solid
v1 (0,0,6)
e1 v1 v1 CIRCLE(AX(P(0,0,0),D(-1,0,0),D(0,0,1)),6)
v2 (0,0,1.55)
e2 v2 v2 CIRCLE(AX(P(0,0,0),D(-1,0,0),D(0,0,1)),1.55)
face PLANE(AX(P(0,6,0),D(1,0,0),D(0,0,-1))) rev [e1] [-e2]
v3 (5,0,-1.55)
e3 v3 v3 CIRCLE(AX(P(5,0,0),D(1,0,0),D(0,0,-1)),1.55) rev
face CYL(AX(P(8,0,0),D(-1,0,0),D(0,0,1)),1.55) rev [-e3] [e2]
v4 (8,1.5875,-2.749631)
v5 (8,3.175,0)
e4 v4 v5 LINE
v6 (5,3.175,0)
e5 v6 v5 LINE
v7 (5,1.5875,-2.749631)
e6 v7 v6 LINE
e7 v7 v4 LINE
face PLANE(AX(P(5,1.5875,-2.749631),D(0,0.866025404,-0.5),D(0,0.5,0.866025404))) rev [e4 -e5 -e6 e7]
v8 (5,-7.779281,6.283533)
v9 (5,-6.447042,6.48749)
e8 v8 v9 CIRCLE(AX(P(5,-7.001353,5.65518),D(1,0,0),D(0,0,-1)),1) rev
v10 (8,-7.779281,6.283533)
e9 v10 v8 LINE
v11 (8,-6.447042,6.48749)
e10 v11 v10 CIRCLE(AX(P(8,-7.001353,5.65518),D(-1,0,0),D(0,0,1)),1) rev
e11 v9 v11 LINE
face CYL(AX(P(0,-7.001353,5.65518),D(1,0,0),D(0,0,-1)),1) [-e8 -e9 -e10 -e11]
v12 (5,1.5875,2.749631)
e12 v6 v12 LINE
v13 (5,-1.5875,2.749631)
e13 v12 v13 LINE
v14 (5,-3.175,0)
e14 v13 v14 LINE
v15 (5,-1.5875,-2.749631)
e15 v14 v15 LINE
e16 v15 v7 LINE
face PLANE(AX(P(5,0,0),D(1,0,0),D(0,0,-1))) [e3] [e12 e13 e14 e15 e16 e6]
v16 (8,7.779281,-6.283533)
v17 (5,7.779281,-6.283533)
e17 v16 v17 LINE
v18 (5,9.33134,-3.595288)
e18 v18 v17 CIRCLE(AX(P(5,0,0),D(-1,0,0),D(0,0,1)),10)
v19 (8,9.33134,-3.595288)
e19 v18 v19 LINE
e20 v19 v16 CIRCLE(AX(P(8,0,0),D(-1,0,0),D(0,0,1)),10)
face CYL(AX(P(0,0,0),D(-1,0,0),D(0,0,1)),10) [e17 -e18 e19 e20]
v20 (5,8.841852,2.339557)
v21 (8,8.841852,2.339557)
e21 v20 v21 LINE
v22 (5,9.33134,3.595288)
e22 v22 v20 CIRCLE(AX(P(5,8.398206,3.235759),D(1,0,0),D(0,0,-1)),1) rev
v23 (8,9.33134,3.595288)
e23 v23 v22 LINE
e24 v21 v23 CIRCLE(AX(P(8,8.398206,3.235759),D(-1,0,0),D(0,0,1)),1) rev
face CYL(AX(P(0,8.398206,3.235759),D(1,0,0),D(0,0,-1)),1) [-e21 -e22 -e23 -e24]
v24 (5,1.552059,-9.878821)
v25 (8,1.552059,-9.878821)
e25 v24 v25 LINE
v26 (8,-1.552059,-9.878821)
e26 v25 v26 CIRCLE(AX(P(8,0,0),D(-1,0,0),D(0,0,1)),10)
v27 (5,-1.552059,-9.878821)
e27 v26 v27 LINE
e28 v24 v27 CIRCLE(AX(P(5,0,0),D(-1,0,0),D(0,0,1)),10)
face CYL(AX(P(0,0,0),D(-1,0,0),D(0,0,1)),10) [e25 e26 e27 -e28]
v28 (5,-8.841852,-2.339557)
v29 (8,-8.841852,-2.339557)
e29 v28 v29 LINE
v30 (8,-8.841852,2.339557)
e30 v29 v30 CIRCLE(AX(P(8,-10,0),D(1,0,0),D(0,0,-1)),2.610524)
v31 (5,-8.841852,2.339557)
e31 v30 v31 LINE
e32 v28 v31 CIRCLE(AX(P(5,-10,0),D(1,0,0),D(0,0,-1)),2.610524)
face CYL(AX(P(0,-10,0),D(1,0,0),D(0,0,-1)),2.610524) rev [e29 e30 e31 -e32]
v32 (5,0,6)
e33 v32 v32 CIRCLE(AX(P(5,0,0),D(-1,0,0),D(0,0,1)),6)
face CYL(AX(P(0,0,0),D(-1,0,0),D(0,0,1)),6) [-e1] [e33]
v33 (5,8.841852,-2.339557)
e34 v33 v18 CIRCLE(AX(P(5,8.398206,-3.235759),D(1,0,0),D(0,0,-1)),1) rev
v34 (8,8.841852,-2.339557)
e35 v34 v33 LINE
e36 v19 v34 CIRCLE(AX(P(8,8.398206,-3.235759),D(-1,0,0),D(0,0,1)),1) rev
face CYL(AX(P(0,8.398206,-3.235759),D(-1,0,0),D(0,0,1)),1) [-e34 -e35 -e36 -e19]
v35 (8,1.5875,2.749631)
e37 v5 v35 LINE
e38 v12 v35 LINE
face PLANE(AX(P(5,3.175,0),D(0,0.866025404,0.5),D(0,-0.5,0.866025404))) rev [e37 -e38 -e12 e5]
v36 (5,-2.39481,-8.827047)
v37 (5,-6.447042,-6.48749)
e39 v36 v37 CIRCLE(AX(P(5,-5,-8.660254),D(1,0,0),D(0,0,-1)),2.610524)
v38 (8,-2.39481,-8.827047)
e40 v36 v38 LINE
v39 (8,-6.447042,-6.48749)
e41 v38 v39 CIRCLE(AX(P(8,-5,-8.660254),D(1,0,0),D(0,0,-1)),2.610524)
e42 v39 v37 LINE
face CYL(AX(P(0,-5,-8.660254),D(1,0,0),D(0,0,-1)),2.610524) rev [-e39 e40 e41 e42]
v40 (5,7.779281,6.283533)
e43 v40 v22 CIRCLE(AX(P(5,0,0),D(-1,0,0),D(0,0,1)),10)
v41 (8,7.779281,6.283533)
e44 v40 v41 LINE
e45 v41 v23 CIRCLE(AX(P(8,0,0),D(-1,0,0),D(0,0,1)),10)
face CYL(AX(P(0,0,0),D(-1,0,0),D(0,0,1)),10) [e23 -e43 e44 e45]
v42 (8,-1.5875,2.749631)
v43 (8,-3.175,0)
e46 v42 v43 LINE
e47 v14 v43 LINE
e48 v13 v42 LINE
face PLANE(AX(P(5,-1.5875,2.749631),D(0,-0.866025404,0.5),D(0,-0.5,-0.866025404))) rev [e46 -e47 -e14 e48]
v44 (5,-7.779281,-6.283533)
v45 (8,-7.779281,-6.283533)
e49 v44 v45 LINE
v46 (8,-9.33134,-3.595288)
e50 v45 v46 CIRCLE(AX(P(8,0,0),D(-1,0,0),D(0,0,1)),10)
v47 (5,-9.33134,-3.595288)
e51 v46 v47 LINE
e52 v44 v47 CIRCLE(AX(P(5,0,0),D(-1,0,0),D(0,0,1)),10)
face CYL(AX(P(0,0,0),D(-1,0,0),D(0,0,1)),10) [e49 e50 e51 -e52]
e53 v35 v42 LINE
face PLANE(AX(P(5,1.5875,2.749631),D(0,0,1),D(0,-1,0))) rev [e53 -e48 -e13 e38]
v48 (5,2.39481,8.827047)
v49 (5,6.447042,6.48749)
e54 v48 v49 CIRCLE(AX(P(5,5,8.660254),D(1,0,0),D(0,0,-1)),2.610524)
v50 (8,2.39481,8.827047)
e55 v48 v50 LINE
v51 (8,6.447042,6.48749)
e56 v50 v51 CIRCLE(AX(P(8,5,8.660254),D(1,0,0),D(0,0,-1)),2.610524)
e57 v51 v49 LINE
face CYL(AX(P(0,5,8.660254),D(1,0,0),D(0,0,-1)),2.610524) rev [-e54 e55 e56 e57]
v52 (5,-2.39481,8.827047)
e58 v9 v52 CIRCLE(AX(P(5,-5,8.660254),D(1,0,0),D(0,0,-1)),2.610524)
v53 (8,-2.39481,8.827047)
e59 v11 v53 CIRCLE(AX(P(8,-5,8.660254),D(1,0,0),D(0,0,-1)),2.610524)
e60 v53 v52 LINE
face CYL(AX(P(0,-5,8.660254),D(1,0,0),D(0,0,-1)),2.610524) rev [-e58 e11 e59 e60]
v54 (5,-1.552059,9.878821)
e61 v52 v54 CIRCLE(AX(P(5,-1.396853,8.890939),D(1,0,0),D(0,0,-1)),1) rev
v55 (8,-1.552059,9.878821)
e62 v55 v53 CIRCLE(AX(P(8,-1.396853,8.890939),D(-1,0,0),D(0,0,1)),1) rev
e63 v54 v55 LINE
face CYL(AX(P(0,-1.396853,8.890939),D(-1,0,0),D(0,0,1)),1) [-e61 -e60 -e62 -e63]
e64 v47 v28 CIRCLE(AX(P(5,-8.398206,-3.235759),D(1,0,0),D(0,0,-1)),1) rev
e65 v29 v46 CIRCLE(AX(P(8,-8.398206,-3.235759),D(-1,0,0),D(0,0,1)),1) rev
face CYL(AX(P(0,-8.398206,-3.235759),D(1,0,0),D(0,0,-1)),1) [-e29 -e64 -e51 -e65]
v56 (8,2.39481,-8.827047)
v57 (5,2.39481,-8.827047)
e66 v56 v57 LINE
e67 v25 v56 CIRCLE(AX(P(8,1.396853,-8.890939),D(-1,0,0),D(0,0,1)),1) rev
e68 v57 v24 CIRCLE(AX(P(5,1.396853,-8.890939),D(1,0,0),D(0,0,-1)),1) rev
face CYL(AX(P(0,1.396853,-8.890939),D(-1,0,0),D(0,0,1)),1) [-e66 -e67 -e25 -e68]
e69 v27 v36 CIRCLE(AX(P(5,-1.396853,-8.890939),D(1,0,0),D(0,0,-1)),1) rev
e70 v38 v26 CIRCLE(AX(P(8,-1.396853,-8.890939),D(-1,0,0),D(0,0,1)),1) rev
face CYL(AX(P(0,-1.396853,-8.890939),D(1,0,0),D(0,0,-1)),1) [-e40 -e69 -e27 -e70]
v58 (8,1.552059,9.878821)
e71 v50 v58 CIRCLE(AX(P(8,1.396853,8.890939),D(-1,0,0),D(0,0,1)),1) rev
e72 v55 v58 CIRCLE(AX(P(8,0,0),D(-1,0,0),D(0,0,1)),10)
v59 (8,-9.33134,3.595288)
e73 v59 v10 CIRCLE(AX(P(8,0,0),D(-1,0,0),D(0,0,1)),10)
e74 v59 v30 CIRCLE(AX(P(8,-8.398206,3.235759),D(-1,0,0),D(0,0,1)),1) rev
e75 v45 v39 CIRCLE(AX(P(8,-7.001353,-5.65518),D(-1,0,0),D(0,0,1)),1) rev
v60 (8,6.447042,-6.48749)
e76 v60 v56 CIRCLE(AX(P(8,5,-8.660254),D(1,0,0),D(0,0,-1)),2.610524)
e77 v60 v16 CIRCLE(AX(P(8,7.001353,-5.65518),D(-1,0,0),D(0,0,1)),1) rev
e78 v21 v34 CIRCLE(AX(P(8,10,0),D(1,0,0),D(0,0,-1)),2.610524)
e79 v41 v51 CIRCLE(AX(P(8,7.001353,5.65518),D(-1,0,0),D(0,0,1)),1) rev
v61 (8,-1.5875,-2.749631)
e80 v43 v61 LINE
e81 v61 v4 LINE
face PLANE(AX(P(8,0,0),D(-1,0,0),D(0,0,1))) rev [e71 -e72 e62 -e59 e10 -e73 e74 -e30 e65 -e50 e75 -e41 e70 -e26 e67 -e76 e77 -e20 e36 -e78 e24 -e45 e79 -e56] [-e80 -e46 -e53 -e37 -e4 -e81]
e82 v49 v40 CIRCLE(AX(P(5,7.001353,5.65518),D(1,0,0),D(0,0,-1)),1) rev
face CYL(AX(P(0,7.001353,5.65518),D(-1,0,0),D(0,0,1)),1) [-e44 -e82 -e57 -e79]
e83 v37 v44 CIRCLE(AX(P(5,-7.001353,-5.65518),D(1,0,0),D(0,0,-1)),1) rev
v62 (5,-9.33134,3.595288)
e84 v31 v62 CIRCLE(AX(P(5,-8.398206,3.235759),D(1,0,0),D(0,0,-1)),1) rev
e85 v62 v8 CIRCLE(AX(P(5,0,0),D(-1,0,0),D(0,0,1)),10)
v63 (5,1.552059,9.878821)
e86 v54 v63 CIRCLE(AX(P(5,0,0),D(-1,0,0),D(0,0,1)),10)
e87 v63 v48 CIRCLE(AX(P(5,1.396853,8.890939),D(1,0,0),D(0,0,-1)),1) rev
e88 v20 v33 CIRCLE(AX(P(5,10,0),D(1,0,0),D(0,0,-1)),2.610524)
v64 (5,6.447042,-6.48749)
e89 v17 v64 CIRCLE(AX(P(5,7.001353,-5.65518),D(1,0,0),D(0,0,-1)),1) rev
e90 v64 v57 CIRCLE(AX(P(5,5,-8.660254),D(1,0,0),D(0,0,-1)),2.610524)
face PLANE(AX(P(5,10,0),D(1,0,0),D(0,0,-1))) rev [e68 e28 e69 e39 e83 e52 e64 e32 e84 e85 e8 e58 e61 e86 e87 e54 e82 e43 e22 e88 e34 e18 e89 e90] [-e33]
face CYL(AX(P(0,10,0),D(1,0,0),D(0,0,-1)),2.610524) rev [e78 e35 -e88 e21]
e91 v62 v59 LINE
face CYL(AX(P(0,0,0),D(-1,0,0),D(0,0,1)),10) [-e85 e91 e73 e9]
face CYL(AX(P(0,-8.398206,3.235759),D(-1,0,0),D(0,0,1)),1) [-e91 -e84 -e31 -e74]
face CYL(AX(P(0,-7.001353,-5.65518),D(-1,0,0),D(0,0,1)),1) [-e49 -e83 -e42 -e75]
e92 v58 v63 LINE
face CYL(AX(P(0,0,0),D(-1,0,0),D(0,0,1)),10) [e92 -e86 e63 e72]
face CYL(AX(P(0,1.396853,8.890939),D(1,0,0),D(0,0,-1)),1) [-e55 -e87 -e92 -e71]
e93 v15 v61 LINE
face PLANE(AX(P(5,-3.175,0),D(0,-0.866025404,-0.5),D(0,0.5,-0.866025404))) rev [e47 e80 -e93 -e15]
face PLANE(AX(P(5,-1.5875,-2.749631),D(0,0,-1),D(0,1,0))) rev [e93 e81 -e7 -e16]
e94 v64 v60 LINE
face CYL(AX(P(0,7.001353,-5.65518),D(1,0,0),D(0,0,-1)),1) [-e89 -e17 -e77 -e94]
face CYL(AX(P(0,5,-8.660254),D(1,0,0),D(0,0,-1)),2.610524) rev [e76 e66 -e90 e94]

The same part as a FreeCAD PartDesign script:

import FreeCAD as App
import Part
import Sketcher
Q = App.Units.Quantity


def edges_at(feature, points):
    """Names of the edges that pass closest to the given points."""
    edges = feature.Shape.Edges
    near = lambda p: min(range(len(edges)), key=lambda i: edges[i].distToShape(Part.Vertex(*p))[0])
    return sorted({f"Edge{near(p) + 1}" for p in points})

doc = App.newDocument("Part")
body = doc.addObject("PartDesign::Body", "Body")

sketch1 = doc.addObject("Sketcher::SketchObject", "Sketch")
body.addObject(sketch1)
sketch1.AttachmentSupport = (doc.XY_Plane, [""])
sketch1.MapMode = "FlatFace"
sketch1.addGeometry(Part.LineSegment(App.Vector(0, 0, 0), App.Vector(8, 0, 0)), False)
sketch1.addGeometry(Part.LineSegment(App.Vector(8, 0, 0), App.Vector(8, 10, 0)), False)
sketch1.addGeometry(Part.LineSegment(App.Vector(8, 10, 0), App.Vector(5, 10, 0)), False)
sketch1.addGeometry(Part.LineSegment(App.Vector(5, 10, 0), App.Vector(5, 6, 0)), False)
sketch1.addGeometry(Part.LineSegment(App.Vector(5, 6, 0), App.Vector(0, 6, 0)), False)
sketch1.addGeometry(Part.LineSegment(App.Vector(0, 6, 0), App.Vector(0, 0, 0)), False)
sketch1.addConstraint(Sketcher.Constraint("Coincident", 0, 2, 1, 1))
sketch1.addConstraint(Sketcher.Constraint("Coincident", 1, 2, 2, 1))
sketch1.addConstraint(Sketcher.Constraint("Coincident", 2, 2, 3, 1))
sketch1.addConstraint(Sketcher.Constraint("Coincident", 3, 2, 4, 1))
sketch1.addConstraint(Sketcher.Constraint("Coincident", 4, 2, 5, 1))
sketch1.addConstraint(Sketcher.Constraint("Coincident", 5, 2, 0, 1))
sketch1.addConstraint(Sketcher.Constraint("Horizontal", 0))
sketch1.addConstraint(Sketcher.Constraint("Vertical", 1))
sketch1.addConstraint(Sketcher.Constraint("Horizontal", 2))
sketch1.addConstraint(Sketcher.Constraint("Vertical", 3))
sketch1.addConstraint(Sketcher.Constraint("Horizontal", 4))
sketch1.addConstraint(Sketcher.Constraint("Vertical", 5))
sketch1.addConstraint(Sketcher.Constraint("Coincident", 5, 2, -1, 1))
sketch1.addConstraint(Sketcher.Constraint("DistanceX", 0, 1, 0, 2, 8.0))
sketch1.addConstraint(Sketcher.Constraint("DistanceX", 2, 2, 2, 1, 3.0))
sketch1.addConstraint(Sketcher.Constraint("DistanceY", 1, 1, 1, 2, 10.0))
sketch1.addConstraint(Sketcher.Constraint("DistanceY", 3, 2, 3, 1, 4.0))
revolution = doc.addObject("PartDesign::Revolution", "Revolution")
body.addObject(revolution)
revolution.Profile = sketch1
revolution.ReferenceAxis = (sketch1, ["H_Axis"])
revolution.Angle = 360

sketch2 = doc.addObject("Sketcher::SketchObject", "Sketch001")
body.addObject(sketch2)
sketch2.AttachmentSupport = (doc.YZ_Plane, [""])
sketch2.MapMode = "FlatFace"
sketch2.addGeometry(Part.Circle(App.Vector(0, 0, 0), App.Vector(0, 0, 1), 1.55), False)
sketch2.addConstraint(Sketcher.Constraint("Coincident", 0, 3, -1, 1))
sketch2.addConstraint(Sketcher.Constraint("Diameter", 0, 3.1))
pocket1 = doc.addObject("PartDesign::Pocket", "Pocket")
body.addObject(pocket1)
pocket1.Profile = sketch2
pocket1.Type = "ThroughAll"
pocket1.Reversed = True

sketch3 = doc.addObject("Sketcher::SketchObject", "Sketch002")
body.addObject(sketch3)
sketch3.AttachmentSupport = (doc.YZ_Plane, [""])
sketch3.MapMode = "FlatFace"
sketch3.AttachmentOffset = App.Placement(App.Vector(0, 0, 8), App.Rotation())
sketch3.addGeometry(Part.Circle(App.Vector(10, 0, 0), App.Vector(0, 0, 1), 2.610524), False)
sketch3.addGeometry(Part.Circle(App.Vector(5, -8.660254, 0), App.Vector(0, 0, 1), 2.610524), False)
sketch3.addGeometry(Part.Circle(App.Vector(-5, -8.660254, 0), App.Vector(0, 0, 1), 2.610524), False)
sketch3.addGeometry(Part.Circle(App.Vector(-10, 0, 0), App.Vector(0, 0, 1), 2.610524), False)
sketch3.addGeometry(Part.Circle(App.Vector(-5, 8.660254, 0), App.Vector(0, 0, 1), 2.610524), False)
sketch3.addGeometry(Part.Circle(App.Vector(5, 8.660254, 0), App.Vector(0, 0, 1), 2.610524), False)
sketch3.addConstraint(Sketcher.Constraint("Equal", 0, 1))
sketch3.addConstraint(Sketcher.Constraint("Equal", 1, 2))
sketch3.addConstraint(Sketcher.Constraint("Equal", 2, 3))
sketch3.addConstraint(Sketcher.Constraint("Equal", 3, 4))
sketch3.addConstraint(Sketcher.Constraint("Equal", 4, 5))
sketch3.addConstraint(Sketcher.Constraint("Symmetric", 0, 3, 3, 3, -1, 1))
sketch3.addConstraint(Sketcher.Constraint("Symmetric", 1, 3, 4, 3, -1, 1))
sketch3.addConstraint(Sketcher.Constraint("Symmetric", 2, 3, 5, 3, -1, 1))
sketch3.addConstraint(Sketcher.Constraint("Symmetric", 1, 3, 2, 3, -2))
sketch3.addConstraint(Sketcher.Constraint("PointOnObject", 0, 3, -1))
sketch3.addConstraint(Sketcher.Constraint("DistanceX", -1, 1, 0, 3, 10.0))
sketch3.addConstraint(Sketcher.Constraint("DistanceX", -1, 1, 1, 3, 5.0))
sketch3.addConstraint(Sketcher.Constraint("Diameter", 0, 5.221048))
sketch3.addConstraint(Sketcher.Constraint("DistanceY", 2, 3, 4, 3, 17.320508))
pocket2 = doc.addObject("PartDesign::Pocket", "Pocket001")
body.addObject(pocket2)
pocket2.Profile = sketch3
pocket2.Type = "ThroughAll"
doc.recompute()

fillet = doc.addObject("PartDesign::Fillet", "Fillet")
body.addObject(fillet)
fillet.Base = (pocket2, edges_at(pocket2, [
    (6.5, 2.588, -9.659),
    (6.5, 7.071, -7.071),
    (6.5, -7.071, -7.071),
    (6.5, -2.588, -9.659),
    (6.5, -9.659, 2.588),
    (6.5, -9.659, -2.588),
    (6.5, -2.588, 9.659),
    (6.5, -7.071, 7.071),
    (6.5, 7.071, 7.071),
    (6.5, 2.588, 9.659),
    (6.5, 9.659, -2.588),
    (6.5, 9.659, 2.588),
]))
fillet.Radius = 1

sketch4 = doc.addObject("Sketcher::SketchObject", "Sketch003")
body.addObject(sketch4)
sketch4.AttachmentSupport = (doc.YZ_Plane, [""])
sketch4.MapMode = "FlatFace"
sketch4.AttachmentOffset = App.Placement(App.Vector(0, 0, 8), App.Rotation())
sketch4.addGeometry(Part.LineSegment(App.Vector(1.5875, -2.749631, 0), App.Vector(3.175, 0, 0)), False)
sketch4.addGeometry(Part.LineSegment(App.Vector(3.175, 0, 0), App.Vector(1.5875, 2.749631, 0)), False)
sketch4.addGeometry(Part.LineSegment(App.Vector(1.5875, 2.749631, 0), App.Vector(-1.5875, 2.749631, 0)), False)
sketch4.addGeometry(Part.LineSegment(App.Vector(-1.5875, 2.749631, 0), App.Vector(-3.175, 0, 0)), False)
sketch4.addGeometry(Part.LineSegment(App.Vector(-3.175, 0, 0), App.Vector(-1.5875, -2.749631, 0)), False)
sketch4.addGeometry(Part.LineSegment(App.Vector(-1.5875, -2.749631, 0), App.Vector(1.5875, -2.749631, 0)), False)
sketch4.addConstraint(Sketcher.Constraint("Coincident", 0, 2, 1, 1))
sketch4.addConstraint(Sketcher.Constraint("Coincident", 1, 2, 2, 1))
sketch4.addConstraint(Sketcher.Constraint("Coincident", 2, 2, 3, 1))
sketch4.addConstraint(Sketcher.Constraint("Coincident", 3, 2, 4, 1))
sketch4.addConstraint(Sketcher.Constraint("Coincident", 4, 2, 5, 1))
sketch4.addConstraint(Sketcher.Constraint("Coincident", 5, 2, 0, 1))
sketch4.addConstraint(Sketcher.Constraint("Horizontal", 2))
sketch4.addConstraint(Sketcher.Constraint("Horizontal", 5))
sketch4.addConstraint(Sketcher.Constraint("Symmetric", 0, 2, 3, 2, -1, 1))
sketch4.addConstraint(Sketcher.Constraint("Symmetric", 1, 2, 4, 2, -1, 1))
sketch4.addConstraint(Sketcher.Constraint("PointOnObject", 0, 2, -1))
sketch4.addConstraint(Sketcher.Constraint("Parallel", 0, 3))
sketch4.addConstraint(Sketcher.Constraint("Vertical", 2, 2, 4, 2))
sketch4.addConstraint(Sketcher.Constraint("Angle", 0, Q("60 deg")))
sketch4.addConstraint(Sketcher.Constraint("DistanceX", 2, 2, 2, 1, 3.175))
sketch4.addConstraint(Sketcher.Constraint("DistanceX", 3, 2, 0, 2, 6.35))
pocket3 = doc.addObject("PartDesign::Pocket", "Pocket002")
body.addObject(pocket3)
pocket3.Profile = sketch4
pocket3.Length = 3

doc.recompute()
